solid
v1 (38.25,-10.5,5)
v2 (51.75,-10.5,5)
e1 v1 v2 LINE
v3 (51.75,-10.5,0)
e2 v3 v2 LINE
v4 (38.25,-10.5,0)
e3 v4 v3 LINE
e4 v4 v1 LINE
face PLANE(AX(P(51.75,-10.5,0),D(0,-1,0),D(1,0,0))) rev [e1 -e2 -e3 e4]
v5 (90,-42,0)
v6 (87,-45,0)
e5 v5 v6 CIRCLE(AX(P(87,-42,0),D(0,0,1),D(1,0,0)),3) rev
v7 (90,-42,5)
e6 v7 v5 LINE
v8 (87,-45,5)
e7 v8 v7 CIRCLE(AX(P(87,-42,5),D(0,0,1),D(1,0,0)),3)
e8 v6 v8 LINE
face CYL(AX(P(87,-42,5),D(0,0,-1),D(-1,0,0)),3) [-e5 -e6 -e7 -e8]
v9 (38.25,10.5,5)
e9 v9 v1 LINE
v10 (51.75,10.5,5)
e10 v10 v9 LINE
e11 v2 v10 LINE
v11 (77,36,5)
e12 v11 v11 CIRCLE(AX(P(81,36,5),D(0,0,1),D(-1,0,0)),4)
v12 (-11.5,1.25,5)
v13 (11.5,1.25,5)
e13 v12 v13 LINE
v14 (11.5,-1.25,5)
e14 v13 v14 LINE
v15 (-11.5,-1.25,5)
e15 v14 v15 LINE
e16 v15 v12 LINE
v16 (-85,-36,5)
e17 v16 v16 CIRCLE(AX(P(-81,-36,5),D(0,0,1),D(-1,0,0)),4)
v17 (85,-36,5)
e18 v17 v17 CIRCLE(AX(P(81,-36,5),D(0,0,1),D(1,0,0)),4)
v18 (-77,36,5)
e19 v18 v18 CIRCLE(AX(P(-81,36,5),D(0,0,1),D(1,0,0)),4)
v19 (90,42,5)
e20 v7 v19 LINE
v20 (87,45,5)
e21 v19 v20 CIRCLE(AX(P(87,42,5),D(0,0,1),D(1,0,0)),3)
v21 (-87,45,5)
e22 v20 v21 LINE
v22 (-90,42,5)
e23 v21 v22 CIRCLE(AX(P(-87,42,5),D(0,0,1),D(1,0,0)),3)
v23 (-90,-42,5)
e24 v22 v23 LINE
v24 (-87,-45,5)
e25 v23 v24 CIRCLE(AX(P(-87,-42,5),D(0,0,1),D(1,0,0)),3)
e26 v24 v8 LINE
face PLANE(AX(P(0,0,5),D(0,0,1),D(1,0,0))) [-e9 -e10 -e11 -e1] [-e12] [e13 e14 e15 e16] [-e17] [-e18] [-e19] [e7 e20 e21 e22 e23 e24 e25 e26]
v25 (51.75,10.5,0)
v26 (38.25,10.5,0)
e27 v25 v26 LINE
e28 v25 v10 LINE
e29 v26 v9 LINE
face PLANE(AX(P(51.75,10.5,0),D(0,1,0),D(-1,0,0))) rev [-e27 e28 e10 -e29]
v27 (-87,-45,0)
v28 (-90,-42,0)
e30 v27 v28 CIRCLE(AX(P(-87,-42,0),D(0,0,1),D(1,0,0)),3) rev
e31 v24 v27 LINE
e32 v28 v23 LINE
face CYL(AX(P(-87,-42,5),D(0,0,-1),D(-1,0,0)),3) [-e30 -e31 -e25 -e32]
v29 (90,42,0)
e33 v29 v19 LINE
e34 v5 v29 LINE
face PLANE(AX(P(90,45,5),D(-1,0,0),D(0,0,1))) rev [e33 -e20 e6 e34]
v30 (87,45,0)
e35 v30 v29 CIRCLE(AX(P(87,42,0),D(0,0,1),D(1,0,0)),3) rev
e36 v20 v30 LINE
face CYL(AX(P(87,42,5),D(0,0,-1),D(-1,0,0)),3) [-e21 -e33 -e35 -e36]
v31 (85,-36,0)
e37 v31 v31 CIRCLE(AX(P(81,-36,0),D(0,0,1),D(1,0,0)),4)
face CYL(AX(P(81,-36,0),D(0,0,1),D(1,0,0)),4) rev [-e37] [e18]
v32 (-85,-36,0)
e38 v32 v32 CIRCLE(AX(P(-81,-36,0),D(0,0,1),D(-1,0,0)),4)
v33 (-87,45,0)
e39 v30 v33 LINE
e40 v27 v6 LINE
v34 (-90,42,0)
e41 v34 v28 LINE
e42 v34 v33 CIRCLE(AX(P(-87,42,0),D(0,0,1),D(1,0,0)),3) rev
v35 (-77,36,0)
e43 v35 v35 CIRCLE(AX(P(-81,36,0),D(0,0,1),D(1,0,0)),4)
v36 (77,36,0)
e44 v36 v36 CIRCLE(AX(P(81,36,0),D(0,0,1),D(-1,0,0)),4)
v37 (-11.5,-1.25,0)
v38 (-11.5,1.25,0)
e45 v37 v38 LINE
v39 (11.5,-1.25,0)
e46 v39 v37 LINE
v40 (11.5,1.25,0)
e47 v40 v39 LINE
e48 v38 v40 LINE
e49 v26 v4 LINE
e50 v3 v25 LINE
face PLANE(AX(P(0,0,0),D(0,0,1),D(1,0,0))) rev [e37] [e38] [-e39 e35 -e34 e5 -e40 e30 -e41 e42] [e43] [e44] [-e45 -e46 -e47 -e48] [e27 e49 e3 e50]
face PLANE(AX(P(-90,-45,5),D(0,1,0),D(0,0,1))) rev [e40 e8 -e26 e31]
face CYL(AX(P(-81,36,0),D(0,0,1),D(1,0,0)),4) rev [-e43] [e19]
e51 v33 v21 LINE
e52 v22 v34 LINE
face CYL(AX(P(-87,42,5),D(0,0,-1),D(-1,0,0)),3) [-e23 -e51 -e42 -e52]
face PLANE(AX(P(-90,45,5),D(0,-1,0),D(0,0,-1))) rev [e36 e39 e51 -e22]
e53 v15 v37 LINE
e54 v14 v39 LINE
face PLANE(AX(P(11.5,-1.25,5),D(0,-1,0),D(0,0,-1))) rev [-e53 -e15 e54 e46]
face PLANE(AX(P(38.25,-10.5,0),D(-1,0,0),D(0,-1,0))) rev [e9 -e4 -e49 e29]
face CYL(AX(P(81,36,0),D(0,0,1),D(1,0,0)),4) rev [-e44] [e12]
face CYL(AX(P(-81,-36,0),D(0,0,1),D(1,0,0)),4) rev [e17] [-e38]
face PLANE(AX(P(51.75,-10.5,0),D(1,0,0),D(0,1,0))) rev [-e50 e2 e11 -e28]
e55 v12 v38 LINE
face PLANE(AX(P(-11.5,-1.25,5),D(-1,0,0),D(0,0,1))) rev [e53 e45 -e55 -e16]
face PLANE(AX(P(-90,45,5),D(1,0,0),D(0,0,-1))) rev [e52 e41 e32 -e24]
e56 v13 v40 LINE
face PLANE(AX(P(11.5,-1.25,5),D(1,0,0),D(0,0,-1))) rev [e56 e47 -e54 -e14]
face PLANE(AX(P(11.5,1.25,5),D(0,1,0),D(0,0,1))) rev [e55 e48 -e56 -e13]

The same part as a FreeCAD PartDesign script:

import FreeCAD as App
import Part
import Sketcher
Q = App.Units.Quantity


def edges_at(feature, points):
    """Names of the edges that pass closest to the given points."""
    edges = feature.Shape.Edges
    near = lambda p: min(range(len(edges)), key=lambda i: edges[i].distToShape(Part.Vertex(*p))[0])
    return sorted({f"Edge{near(p) + 1}" for p in points})

doc = App.newDocument("Part")
body = doc.addObject("PartDesign::Body", "Body")

sketch1 = body.newObject("Sketcher::SketchObject", "Sketch")
sketch1.AttachmentSupport = (doc.getObject("XY_Plane"), [""])
sketch1.MapMode = "FlatFace"
sketch1.addGeometry([
    Part.LineSegment(App.Vector(-90, 45, 0), App.Vector(-90, -45, 0)),
    Part.LineSegment(App.Vector(-90, -45, 0), App.Vector(90, -45, 0)),
    Part.LineSegment(App.Vector(90, -45, 0), App.Vector(90, 45, 0)),
    Part.LineSegment(App.Vector(90, 45, 0), App.Vector(-90, 45, 0)),
], False)
sketch1.addConstraint([
    Sketcher.Constraint("Coincident", 0, 2, 1, 1),
    Sketcher.Constraint("Coincident", 1, 2, 2, 1),
    Sketcher.Constraint("Coincident", 2, 2, 3, 1),
    Sketcher.Constraint("Coincident", 3, 2, 0, 1),
    Sketcher.Constraint("Vertical", 0),
    Sketcher.Constraint("Horizontal", 1),
    Sketcher.Constraint("Vertical", 2),
    Sketcher.Constraint("Horizontal", 3),
    Sketcher.Constraint("Symmetric", 0, 2, 2, 2, -1, 1),
    Sketcher.Constraint("DistanceX", 1, 1, 1, 2, Q("180 mm")),
    Sketcher.Constraint("DistanceY", 0, 2, 0, 1, Q("90 mm")),
])
pad1 = body.newObject("PartDesign::Pad", "Pad")
pad1.Profile = sketch1
pad1.Length = 5

sketch2 = body.newObject("Sketcher::SketchObject", "Sketch001")
sketch2.AttachmentSupport = (doc.getObject("XY_Plane"), [""])
sketch2.MapMode = "FlatFace"
sketch2.AttachmentOffset = App.Placement(App.Vector(0, 0, 5), App.Rotation())
sketch2.addGeometry([
    Part.Circle(App.Vector(-81, 36, 0), App.Vector(0, 0, 1), 4),
    Part.Circle(App.Vector(81, 36, 0), App.Vector(0, 0, 1), 4),
    Part.Circle(App.Vector(81, -36, 0), App.Vector(0, 0, 1), 4),
    Part.Circle(App.Vector(-81, -36, 0), App.Vector(0, 0, 1), 4),
], False)
sketch2.addConstraint([
    Sketcher.Constraint("Equal", 0, 1),
    Sketcher.Constraint("Equal", 1, 2),
    Sketcher.Constraint("Equal", 2, 3),
    Sketcher.Constraint("Symmetric", 0, 3, 2, 3, -1, 1),
    Sketcher.Constraint("Symmetric", 1, 3, 3, 3, -1, 1),
    Sketcher.Constraint("Symmetric", 0, 3, 1, 3, -2),
    Sketcher.Constraint("Diameter", 0, Q("8 mm")),
    Sketcher.Constraint("DistanceX", 0, 3, -1, 1, Q("81 mm")),
    Sketcher.Constraint("DistanceY", -1, 1, 0, 3, Q("36 mm")),
])
pocket1 = body.newObject("PartDesign::Pocket", "Pocket")
pocket1.Profile = sketch2
pocket1.Type = "ThroughAll"

sketch3 = body.newObject("Sketcher::SketchObject", "Sketch002")
sketch3.AttachmentSupport = (doc.getObject("XY_Plane"), [""])
sketch3.MapMode = "FlatFace"
sketch3.addGeometry([
    Part.LineSegment(App.Vector(11.5, 1.2, 0), App.Vector(11.5, -1.2, 0)),
    Part.LineSegment(App.Vector(11.5, -1.2, 0), App.Vector(-11.5, -1.2, 0)),
    Part.LineSegment(App.Vector(-11.5, -1.2, 0), App.Vector(-11.5, 1.2, 0)),
    Part.LineSegment(App.Vector(-11.5, 1.2, 0), App.Vector(11.5, 1.2, 0)),
], False)
sketch3.addConstraint([
    Sketcher.Constraint("Coincident", 0, 2, 1, 1),
    Sketcher.Constraint("Coincident", 1, 2, 2, 1),
    Sketcher.Constraint("Coincident", 2, 2, 3, 1),
    Sketcher.Constraint("Coincident", 3, 2, 0, 1),
    Sketcher.Constraint("Vertical", 0),
    Sketcher.Constraint("Horizontal", 1),
    Sketcher.Constraint("Vertical", 2),
    Sketcher.Constraint("Horizontal", 3),
    Sketcher.Constraint("Symmetric", 0, 2, 2, 2, -1, 1),
    Sketcher.Constraint("DistanceX", 1, 2, 1, 1, Q("23 mm")),
    Sketcher.Constraint("DistanceY", 0, 2, 0, 1, Q("2.5 mm")),
])
pocket2 = body.newObject("PartDesign::Pocket", "Pocket001")
pocket2.Profile = sketch3
pocket2.Type = "ThroughAll"
pocket2.Reversed = True
doc.recompute()

fillet = body.newObject("PartDesign::Fillet", "Fillet")
fillet.Base = (pocket2, edges_at(pocket2, [(90, 45, 2.5)]))
fillet.Radius = 3
doc.recompute()

fillet2 = body.newObject("PartDesign::Fillet", "Fillet001")
fillet2.Base = (fillet, edges_at(fillet, [(90, -45, 2.5)]))
fillet2.Radius = 3
doc.recompute()

fillet3 = body.newObject("PartDesign::Fillet", "Fillet002")
fillet3.Base = (fillet2, edges_at(fillet2, [(-90, 45, 2.5)]))
fillet3.Radius = 3
doc.recompute()

fillet4 = body.newObject("PartDesign::Fillet", "Fillet003")
fillet4.Base = (fillet3, edges_at(fillet3, [(-90, -45, 2.5)]))
fillet4.Radius = 3

sketch4 = body.newObject("Sketcher::SketchObject", "Sketch003")
sketch4.AttachmentSupport = (doc.getObject("XY_Plane"), [""])
sketch4.MapMode = "FlatFace"
sketch4.AttachmentOffset = App.Placement(App.Vector(0, 0, 5), App.Rotation())
sketch4.addGeometry([
    Part.LineSegment(App.Vector(38, 10, 0), App.Vector(38, -10, 0)),
    Part.LineSegment(App.Vector(38, -10, 0), App.Vector(52, -10, 0)),
    Part.LineSegment(App.Vector(52, -10, 0), App.Vector(52, 10, 0)),
    Part.LineSegment(App.Vector(52, 10, 0), App.Vector(38, 10, 0)),
], False)
sketch4.addConstraint([
    Sketcher.Constraint("Coincident", 0, 2, 1, 1),
    Sketcher.Constraint("Coincident", 1, 2, 2, 1),
    Sketcher.Constraint("Coincident", 2, 2, 3, 1),
    Sketcher.Constraint("Coincident", 3, 2, 0, 1),
    Sketcher.Constraint("Vertical", 0),
    Sketcher.Constraint("Horizontal", 1),
    Sketcher.Constraint("Vertical", 2),
    Sketcher.Constraint("Horizontal", 3),
    Sketcher.Constraint("DistanceY", 0, 2, 0, 1, Q("21 mm")),
    Sketcher.Constraint("DistanceX", 1, 1, 1, 2, Q("13.5 mm")),
    Sketcher.Constraint("DistanceY", 0, 2, -1, 1, Q("10.5 mm")),
    Sketcher.Constraint("DistanceX", -1, 1, 0, 2, Q("38.25 mm")),
])
pocket3 = body.newObject("PartDesign::Pocket", "Pocket002")
pocket3.Profile = sketch4
pocket3.Type = "ThroughAll"

doc.recompute()
